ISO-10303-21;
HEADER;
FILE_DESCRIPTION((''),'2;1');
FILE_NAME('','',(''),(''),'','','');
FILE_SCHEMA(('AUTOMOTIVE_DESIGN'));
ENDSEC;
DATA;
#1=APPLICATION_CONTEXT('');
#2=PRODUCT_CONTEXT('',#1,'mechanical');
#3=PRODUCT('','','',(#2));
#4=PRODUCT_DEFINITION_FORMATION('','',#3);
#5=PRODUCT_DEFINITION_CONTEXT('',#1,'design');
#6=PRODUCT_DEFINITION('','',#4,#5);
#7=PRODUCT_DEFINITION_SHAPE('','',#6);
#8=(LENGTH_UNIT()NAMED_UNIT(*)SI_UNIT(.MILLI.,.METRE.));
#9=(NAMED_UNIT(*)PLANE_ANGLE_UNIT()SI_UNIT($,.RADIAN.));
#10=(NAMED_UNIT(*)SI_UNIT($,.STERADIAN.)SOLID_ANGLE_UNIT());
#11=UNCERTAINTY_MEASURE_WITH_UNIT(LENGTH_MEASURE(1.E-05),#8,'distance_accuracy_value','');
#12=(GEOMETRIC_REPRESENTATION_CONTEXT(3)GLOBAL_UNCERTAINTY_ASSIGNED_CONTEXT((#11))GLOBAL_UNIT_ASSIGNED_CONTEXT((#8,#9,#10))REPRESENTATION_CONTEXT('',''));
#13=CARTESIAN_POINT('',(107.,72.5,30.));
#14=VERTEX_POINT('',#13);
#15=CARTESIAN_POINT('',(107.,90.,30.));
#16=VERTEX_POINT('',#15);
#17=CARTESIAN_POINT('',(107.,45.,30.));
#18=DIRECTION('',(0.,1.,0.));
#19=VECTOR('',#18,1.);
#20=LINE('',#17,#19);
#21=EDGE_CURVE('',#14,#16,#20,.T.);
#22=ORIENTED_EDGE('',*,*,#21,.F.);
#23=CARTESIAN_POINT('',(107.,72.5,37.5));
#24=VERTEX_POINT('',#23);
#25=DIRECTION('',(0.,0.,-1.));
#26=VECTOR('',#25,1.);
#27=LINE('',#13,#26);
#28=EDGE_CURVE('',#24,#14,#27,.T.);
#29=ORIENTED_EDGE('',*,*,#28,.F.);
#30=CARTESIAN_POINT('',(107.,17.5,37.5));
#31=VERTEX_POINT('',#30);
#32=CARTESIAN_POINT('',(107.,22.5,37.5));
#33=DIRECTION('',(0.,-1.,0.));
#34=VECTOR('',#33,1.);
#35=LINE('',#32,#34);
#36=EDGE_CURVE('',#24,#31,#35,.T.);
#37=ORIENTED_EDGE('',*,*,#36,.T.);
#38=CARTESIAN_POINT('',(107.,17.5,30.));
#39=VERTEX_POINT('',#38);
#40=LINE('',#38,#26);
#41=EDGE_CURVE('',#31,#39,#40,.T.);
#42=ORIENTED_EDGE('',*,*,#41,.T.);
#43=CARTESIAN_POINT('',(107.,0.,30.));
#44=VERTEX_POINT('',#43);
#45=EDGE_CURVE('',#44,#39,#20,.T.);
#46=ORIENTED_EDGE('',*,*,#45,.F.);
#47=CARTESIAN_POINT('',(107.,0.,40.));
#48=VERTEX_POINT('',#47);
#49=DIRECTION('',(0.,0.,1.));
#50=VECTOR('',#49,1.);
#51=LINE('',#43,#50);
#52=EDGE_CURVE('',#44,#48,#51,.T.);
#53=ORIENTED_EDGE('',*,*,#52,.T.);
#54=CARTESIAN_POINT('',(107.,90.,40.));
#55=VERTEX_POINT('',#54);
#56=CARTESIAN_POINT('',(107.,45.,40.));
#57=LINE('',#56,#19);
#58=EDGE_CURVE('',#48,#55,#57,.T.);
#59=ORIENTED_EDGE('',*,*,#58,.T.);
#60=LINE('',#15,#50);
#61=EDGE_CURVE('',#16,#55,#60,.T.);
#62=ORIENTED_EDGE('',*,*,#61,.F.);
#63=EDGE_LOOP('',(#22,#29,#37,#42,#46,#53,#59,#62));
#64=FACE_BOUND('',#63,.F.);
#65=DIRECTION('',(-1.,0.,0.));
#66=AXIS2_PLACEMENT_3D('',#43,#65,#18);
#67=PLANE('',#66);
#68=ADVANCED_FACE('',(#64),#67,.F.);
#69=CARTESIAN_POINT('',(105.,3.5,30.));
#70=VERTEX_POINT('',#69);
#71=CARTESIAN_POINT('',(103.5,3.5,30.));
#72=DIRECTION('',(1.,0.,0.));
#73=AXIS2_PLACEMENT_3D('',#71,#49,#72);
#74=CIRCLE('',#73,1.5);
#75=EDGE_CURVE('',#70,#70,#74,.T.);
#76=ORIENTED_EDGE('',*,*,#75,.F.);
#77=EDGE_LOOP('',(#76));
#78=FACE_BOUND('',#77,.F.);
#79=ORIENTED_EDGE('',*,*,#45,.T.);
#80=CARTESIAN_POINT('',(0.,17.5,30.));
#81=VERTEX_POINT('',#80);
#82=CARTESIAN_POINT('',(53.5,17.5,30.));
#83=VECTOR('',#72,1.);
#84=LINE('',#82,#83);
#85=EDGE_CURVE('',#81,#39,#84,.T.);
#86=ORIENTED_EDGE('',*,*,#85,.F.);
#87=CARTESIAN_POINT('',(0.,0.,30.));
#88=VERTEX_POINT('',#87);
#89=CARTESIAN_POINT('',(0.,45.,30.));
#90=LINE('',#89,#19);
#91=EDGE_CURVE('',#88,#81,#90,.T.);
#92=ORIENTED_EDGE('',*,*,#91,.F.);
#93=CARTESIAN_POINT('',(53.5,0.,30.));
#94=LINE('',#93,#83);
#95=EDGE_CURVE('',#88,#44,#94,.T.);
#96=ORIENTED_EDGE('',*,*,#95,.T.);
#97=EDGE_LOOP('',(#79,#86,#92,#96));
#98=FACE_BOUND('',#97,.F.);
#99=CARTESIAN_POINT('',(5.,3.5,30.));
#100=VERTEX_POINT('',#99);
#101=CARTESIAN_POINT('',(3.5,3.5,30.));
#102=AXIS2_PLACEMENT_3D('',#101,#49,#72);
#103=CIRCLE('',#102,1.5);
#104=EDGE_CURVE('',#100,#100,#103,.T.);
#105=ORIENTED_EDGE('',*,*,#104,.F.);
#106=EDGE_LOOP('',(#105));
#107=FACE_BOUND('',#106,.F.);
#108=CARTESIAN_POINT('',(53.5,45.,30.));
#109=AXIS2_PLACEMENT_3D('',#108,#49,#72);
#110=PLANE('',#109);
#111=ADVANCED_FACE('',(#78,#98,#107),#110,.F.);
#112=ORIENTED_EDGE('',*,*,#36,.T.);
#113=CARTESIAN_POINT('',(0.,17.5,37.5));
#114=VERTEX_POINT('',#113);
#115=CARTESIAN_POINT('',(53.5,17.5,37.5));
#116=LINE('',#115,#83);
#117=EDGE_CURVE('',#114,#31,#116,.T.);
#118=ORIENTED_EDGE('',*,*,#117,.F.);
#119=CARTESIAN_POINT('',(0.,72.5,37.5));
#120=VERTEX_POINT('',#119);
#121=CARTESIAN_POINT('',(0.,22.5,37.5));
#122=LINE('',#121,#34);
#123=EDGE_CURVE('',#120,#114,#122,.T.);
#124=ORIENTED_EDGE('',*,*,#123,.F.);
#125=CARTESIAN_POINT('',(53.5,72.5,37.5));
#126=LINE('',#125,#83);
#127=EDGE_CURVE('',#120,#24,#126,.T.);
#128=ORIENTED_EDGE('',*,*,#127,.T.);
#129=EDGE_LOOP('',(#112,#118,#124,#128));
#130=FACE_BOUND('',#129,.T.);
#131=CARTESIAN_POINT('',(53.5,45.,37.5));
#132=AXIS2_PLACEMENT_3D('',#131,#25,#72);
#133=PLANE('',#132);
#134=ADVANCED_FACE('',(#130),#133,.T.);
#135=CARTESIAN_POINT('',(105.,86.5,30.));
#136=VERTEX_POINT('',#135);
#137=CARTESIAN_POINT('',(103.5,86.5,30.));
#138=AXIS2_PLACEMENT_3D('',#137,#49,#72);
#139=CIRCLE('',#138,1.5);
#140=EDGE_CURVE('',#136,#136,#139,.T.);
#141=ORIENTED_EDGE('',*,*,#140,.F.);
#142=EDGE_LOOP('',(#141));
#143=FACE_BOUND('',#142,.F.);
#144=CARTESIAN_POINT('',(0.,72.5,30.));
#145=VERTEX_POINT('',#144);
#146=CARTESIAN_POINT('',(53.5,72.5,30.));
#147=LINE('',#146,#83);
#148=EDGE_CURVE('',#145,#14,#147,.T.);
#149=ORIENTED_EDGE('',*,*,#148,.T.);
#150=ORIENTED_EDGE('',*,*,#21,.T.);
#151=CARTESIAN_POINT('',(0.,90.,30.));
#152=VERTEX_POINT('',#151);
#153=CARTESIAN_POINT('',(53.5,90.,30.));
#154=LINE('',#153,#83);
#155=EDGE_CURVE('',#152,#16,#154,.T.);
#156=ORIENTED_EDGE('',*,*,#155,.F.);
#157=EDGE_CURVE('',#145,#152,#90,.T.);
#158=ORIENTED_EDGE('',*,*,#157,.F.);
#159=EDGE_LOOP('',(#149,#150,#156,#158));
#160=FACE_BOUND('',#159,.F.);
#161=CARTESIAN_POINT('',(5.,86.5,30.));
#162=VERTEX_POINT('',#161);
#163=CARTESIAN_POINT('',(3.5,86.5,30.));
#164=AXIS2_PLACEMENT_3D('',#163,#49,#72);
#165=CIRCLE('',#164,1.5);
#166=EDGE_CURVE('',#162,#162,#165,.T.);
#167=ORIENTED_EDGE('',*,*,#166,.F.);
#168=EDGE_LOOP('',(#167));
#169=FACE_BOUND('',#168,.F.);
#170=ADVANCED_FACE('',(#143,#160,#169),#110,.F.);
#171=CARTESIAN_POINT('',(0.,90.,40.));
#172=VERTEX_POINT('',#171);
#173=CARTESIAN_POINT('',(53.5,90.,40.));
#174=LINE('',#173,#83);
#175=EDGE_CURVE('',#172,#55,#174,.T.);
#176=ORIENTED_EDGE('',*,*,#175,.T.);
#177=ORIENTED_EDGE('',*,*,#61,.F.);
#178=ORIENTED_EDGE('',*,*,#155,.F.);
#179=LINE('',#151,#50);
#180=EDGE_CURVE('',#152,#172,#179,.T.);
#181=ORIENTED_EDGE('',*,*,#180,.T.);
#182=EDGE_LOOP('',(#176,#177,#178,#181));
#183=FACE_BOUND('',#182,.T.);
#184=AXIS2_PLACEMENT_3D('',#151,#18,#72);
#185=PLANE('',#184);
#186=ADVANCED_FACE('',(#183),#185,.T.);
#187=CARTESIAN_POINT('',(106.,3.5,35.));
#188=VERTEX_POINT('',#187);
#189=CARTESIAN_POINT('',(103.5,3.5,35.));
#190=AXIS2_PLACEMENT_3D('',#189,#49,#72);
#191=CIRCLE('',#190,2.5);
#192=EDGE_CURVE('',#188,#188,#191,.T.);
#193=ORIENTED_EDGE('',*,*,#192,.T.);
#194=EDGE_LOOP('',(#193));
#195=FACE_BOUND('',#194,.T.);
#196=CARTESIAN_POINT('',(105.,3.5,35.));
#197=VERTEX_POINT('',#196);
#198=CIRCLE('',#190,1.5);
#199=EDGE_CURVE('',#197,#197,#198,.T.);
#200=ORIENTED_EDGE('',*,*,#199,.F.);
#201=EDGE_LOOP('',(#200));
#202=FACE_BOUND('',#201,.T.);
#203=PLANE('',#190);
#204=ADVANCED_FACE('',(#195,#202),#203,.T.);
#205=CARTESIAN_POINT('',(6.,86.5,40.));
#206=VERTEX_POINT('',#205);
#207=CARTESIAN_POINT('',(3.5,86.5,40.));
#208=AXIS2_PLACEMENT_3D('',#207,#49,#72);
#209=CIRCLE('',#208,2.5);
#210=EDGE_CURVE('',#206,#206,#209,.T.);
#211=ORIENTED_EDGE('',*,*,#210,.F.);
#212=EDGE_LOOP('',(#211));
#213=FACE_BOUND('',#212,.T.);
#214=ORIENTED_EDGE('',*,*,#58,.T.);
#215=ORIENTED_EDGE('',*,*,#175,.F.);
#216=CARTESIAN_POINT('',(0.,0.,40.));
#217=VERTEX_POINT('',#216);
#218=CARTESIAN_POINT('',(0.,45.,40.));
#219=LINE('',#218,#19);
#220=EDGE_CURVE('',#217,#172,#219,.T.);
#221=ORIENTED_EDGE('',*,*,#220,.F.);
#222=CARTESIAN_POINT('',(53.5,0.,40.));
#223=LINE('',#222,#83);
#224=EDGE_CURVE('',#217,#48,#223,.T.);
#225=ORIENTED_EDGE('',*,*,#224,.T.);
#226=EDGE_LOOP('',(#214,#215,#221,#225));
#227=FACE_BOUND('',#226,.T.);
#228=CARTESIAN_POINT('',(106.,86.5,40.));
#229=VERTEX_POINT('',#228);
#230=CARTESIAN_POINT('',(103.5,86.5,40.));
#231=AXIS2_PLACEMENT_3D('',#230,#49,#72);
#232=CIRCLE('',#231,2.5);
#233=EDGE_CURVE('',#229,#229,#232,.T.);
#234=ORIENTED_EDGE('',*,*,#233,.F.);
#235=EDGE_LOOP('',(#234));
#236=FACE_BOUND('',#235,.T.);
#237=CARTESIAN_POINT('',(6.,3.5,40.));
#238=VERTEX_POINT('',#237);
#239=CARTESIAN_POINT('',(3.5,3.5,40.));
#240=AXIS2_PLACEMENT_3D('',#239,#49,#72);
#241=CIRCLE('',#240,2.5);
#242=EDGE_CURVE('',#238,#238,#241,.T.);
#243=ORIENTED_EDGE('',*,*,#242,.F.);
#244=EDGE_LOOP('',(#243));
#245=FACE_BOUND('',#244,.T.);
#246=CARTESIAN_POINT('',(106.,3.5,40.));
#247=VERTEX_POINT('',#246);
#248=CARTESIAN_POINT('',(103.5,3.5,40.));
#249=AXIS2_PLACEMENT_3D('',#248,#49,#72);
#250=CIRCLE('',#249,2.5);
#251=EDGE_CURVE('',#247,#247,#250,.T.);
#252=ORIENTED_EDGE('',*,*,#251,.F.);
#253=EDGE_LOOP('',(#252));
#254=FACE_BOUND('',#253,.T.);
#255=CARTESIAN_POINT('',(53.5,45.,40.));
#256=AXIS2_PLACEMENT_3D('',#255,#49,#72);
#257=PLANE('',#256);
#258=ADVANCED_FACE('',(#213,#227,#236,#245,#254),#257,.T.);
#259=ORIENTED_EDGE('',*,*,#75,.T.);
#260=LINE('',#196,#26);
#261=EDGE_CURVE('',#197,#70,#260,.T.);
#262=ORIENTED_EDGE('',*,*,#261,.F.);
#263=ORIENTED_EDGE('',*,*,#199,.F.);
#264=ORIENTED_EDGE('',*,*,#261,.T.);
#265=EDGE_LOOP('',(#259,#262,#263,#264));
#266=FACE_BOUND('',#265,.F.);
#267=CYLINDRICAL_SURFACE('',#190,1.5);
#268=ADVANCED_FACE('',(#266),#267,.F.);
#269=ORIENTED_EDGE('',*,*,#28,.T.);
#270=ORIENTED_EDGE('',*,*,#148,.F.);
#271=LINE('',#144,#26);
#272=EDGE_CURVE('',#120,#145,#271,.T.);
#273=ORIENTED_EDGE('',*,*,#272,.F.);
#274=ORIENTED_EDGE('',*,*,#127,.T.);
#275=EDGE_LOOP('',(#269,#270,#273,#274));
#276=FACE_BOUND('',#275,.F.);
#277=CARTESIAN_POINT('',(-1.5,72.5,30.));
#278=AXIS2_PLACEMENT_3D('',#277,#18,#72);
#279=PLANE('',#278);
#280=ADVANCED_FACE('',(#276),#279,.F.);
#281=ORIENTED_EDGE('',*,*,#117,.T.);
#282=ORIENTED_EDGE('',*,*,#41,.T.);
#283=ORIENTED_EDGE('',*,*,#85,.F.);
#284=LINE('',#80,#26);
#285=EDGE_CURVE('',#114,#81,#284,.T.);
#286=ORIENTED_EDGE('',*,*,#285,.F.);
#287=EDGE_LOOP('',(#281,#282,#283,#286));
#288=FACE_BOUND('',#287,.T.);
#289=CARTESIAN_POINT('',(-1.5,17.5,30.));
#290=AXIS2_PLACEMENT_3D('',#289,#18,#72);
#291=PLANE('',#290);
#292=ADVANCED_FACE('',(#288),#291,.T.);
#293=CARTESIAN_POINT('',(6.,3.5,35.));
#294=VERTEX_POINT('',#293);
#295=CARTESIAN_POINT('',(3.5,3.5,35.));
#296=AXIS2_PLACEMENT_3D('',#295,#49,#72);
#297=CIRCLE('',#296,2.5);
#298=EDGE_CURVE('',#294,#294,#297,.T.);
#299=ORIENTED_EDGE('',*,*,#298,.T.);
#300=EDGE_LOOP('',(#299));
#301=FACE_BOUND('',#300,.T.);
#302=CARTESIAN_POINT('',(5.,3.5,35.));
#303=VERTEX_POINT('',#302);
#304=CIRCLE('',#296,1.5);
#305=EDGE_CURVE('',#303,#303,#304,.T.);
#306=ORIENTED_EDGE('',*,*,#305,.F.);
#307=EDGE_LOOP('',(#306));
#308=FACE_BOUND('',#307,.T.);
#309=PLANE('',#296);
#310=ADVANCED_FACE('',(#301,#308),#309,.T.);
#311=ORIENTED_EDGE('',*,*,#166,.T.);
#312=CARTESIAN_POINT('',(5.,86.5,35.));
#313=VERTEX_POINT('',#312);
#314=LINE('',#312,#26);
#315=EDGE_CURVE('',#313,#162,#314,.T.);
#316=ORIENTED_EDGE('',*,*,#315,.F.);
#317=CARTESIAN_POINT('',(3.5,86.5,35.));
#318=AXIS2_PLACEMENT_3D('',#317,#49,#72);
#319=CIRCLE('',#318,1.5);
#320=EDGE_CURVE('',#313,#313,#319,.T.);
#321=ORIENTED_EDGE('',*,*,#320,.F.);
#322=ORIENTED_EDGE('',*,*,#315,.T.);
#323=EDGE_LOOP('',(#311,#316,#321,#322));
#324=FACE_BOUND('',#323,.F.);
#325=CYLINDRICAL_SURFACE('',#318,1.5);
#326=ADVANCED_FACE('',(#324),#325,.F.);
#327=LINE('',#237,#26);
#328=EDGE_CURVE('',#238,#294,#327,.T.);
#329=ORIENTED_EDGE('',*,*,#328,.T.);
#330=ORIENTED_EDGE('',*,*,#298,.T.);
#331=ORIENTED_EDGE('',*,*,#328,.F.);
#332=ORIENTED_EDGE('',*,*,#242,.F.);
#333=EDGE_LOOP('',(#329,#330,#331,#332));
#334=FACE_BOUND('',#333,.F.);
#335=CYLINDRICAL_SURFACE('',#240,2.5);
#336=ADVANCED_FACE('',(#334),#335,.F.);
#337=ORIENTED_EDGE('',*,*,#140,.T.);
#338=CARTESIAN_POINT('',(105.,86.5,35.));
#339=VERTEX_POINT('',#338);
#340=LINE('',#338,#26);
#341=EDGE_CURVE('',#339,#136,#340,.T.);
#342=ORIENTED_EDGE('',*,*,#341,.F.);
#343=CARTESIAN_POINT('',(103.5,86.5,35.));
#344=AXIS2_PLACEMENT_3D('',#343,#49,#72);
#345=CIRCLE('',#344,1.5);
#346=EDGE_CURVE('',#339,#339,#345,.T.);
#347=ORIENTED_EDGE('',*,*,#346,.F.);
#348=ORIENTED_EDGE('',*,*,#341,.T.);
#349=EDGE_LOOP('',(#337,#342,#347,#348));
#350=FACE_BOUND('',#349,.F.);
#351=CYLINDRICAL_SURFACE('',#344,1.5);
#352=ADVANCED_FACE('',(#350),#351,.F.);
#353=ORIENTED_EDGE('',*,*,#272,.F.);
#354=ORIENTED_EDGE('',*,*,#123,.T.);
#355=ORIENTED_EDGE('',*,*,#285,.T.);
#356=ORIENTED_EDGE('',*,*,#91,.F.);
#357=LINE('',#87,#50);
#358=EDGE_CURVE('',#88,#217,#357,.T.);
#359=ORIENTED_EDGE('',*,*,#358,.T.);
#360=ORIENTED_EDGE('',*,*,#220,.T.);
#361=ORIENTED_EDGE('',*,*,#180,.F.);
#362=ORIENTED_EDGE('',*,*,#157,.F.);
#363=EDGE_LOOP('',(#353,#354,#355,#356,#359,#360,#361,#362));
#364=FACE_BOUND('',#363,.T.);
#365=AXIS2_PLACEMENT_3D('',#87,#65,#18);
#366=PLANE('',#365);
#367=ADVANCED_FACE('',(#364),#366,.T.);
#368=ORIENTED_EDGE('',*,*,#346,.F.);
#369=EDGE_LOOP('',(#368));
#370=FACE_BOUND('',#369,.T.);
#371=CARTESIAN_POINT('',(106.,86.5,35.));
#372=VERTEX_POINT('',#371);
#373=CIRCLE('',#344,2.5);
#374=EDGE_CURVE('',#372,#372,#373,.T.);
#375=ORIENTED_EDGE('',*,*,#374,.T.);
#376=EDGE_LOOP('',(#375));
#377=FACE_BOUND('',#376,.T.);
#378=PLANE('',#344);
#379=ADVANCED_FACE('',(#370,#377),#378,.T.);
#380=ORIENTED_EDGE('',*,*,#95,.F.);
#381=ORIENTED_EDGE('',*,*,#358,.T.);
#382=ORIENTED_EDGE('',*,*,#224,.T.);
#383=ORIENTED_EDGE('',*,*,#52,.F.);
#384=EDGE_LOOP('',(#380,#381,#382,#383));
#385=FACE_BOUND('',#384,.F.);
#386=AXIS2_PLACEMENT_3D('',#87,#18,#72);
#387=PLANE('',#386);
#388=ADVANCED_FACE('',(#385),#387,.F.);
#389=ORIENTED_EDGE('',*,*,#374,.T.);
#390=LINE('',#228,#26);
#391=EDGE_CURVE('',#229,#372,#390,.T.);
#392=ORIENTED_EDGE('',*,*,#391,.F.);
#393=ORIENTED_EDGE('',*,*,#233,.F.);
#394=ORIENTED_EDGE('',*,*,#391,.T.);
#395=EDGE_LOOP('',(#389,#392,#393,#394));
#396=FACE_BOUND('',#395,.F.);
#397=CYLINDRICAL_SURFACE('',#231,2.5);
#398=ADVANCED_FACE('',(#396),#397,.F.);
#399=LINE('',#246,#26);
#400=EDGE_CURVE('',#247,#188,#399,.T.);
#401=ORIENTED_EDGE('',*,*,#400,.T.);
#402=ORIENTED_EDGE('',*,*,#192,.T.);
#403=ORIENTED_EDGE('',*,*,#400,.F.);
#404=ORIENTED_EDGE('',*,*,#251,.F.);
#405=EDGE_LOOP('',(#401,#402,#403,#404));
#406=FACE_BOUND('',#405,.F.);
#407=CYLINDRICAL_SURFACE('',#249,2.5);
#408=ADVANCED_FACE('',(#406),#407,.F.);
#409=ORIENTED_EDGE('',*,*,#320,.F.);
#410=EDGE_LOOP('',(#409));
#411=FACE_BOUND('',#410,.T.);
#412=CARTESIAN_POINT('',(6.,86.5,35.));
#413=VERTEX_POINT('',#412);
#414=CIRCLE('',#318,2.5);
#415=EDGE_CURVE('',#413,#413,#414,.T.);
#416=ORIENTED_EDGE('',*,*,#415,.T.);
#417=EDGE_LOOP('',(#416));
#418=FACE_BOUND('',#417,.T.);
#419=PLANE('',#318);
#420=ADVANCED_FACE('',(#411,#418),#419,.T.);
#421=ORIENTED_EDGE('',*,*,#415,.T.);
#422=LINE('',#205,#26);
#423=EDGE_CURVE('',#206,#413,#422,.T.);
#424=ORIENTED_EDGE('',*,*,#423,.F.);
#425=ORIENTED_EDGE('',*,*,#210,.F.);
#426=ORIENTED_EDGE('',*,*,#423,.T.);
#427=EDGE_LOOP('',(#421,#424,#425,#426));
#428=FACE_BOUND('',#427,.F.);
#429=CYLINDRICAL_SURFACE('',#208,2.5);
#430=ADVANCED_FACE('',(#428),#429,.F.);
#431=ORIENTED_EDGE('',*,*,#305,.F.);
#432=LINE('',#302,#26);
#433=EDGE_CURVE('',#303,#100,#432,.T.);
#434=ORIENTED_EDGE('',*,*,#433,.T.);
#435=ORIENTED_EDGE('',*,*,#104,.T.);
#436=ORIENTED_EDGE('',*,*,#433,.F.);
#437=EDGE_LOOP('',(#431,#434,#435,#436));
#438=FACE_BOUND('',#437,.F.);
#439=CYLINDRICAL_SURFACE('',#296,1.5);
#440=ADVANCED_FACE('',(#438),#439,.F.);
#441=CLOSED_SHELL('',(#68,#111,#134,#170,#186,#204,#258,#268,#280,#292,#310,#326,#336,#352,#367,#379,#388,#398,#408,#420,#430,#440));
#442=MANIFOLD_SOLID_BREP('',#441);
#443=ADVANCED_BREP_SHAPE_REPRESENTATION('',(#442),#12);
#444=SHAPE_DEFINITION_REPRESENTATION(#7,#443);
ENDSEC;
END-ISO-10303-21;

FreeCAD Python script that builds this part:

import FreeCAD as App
import Part
import Sketcher


def add_polygon(sketch, points):
    """Adds a closed chain of lines whose ends are joined by coincident constraints."""
    first, n = sketch.GeometryCount, len(points)
    for a, b in zip(points, points[1:] + points[:1]):
        sketch.addGeometry(Part.LineSegment(App.Vector(*a, 0), App.Vector(*b, 0)), False)
    for i in range(n):
        sketch.addConstraint(Sketcher.Constraint("Coincident", first + i, 2, first + (i + 1) % n, 1))

doc = App.newDocument("Part")
body = doc.addObject("PartDesign::Body", "Body")

sketch1 = doc.addObject("Sketcher::SketchObject", "Sketch")
body.addObject(sketch1)
sketch1.AttachmentSupport = (doc.XY_Plane, [""])
sketch1.MapMode = "FlatFace"
add_polygon(sketch1, [(0, 90), (0, 0), (107, 0), (107, 90)])
sketch1.addConstraint([
    Sketcher.Constraint("Vertical", 0),
    Sketcher.Constraint("Horizontal", 1),
    Sketcher.Constraint("Vertical", 2),
    Sketcher.Constraint("Horizontal", 3),
    Sketcher.Constraint("Coincident", 0, 2, -1, 1),
    Sketcher.Constraint("DistanceX", 1, 1, 1, 2, 107.0),
    Sketcher.Constraint("DistanceY", 0, 2, 0, 1, 90.0),
])
pad1 = doc.addObject("PartDesign::Pad", "Pad")
body.addObject(pad1)
pad1.Profile = sketch1
pad1.Length = 10

sketch2 = doc.addObject("Sketcher::SketchObject", "Sketch001")
body.addObject(sketch2)
sketch2.AttachmentSupport = (doc.XY_Plane, [""])
sketch2.MapMode = "FlatFace"
sketch2.AttachmentOffset = App.Placement(App.Vector(0, 0, 10), App.Rotation())
sketch2.addGeometry(Part.Circle(App.Vector(3.5, 86.5, 0), App.Vector(0, 0, 1), 2.5), False)
sketch2.addConstraint([
    Sketcher.Constraint("Diameter", 0, 5.0),
    Sketcher.Constraint("DistanceX", -1, 1, 0, 3, 3.5),
    Sketcher.Constraint("DistanceY", -1, 1, 0, 3, 86.5),
])
pocket1 = doc.addObject("PartDesign::Pocket", "Pocket")
body.addObject(pocket1)
pocket1.Profile = sketch2
pocket1.Length = 5

sketch3 = doc.addObject("Sketcher::SketchObject", "Sketch002")
body.addObject(sketch3)
sketch3.AttachmentSupport = (doc.XY_Plane, [""])
sketch3.MapMode = "FlatFace"
sketch3.AttachmentOffset = App.Placement(App.Vector(0, 0, 5), App.Rotation())
sketch3.addGeometry(Part.Circle(App.Vector(3.5, 86.5, 0), App.Vector(0, 0, 1), 1.5), False)
sketch3.addConstraint([
    Sketcher.Constraint("Diameter", 0, 3.0),
    Sketcher.Constraint("DistanceX", -1, 1, 0, 3, 3.5),
    Sketcher.Constraint("DistanceY", -1, 1, 0, 3, 86.5),
])
pocket2 = doc.addObject("PartDesign::Pocket", "Pocket001")
body.addObject(pocket2)
pocket2.Profile = sketch3
pocket2.Type = "ThroughAll"

sketch4 = doc.addObject("Sketcher::SketchObject", "Sketch003")
body.addObject(sketch4)
sketch4.AttachmentSupport = (doc.XY_Plane, [""])
sketch4.MapMode = "FlatFace"
sketch4.AttachmentOffset = App.Placement(App.Vector(0, 0, 10), App.Rotation())
sketch4.addGeometry(Part.Circle(App.Vector(103.5, 86.5, 0), App.Vector(0, 0, 1), 2.5), False)
sketch4.addConstraint([
    Sketcher.Constraint("Diameter", 0, 5.0),
    Sketcher.Constraint("DistanceX", -1, 1, 0, 3, 103.5),
    Sketcher.Constraint("DistanceY", -1, 1, 0, 3, 86.5),
])
pocket3 = doc.addObject("PartDesign::Pocket", "Pocket002")
body.addObject(pocket3)
pocket3.Profile = sketch4
pocket3.Length = 5
doc.recompute()

linearpattern = doc.addObject("PartDesign::LinearPattern", "LinearPattern")
body.addObject(linearpattern)
linearpattern.Originals = [pocket1, pocket3]
linearpattern.Direction = (doc.Y_Axis, [""])
linearpattern.Mode = "offset"
linearpattern.Offset = 83
linearpattern.Occurrences = 2
linearpattern.Reversed = True
body.Tip = linearpattern

sketch5 = doc.addObject("Sketcher::SketchObject", "Sketch004")
body.addObject(sketch5)
sketch5.AttachmentSupport = (doc.XY_Plane, [""])
sketch5.MapMode = "FlatFace"
sketch5.AttachmentOffset = App.Placement(App.Vector(0, 0, 5), App.Rotation())
sketch5.addGeometry(Part.Circle(App.Vector(103.5, 86.5, 0), App.Vector(0, 0, 1), 1.5), False)
sketch5.addConstraint([
    Sketcher.Constraint("Diameter", 0, 3.0),
    Sketcher.Constraint("DistanceX", -1, 1, 0, 3, 103.5),
    Sketcher.Constraint("DistanceY", -1, 1, 0, 3, 86.5),
])
pocket4 = doc.addObject("PartDesign::Pocket", "Pocket003")
body.addObject(pocket4)
pocket4.Profile = sketch5
pocket4.Type = "ThroughAll"
doc.recompute()

linearpattern2 = doc.addObject("PartDesign::LinearPattern", "LinearPattern001")
body.addObject(linearpattern2)
linearpattern2.Originals = [pocket2, pocket4]
linearpattern2.Direction = (doc.Y_Axis, [""])
linearpattern2.Mode = "offset"
linearpattern2.Offset = 83
linearpattern2.Occurrences = 2
linearpattern2.Reversed = True
body.Tip = linearpattern2

sketch6 = doc.addObject("Sketcher::SketchObject", "Sketch005")
body.addObject(sketch6)
sketch6.AttachmentSupport = (doc.XY_Plane, [""])
sketch6.MapMode = "FlatFace"
add_polygon(sketch6, [(-2, 18), (-2, 72), (108, 72), (108, 18)])
sketch6.addConstraint([
    Sketcher.Constraint("Vertical", 0),
    Sketcher.Constraint("Horizontal", 1),
    Sketcher.Constraint("Vertical", 2),
    Sketcher.Constraint("Horizontal", 3),
    Sketcher.Constraint("DistanceX", 1, 1, 1, 2, 110.0),
    Sketcher.Constraint("DistanceY", 0, 1, 0, 2, 55.0),
    Sketcher.Constraint("DistanceX", 0, 2, -1, 1, 1.5),
    Sketcher.Constraint("DistanceY", -1, 1, 0, 2, 72.5),
])
pocket5 = doc.addObject("PartDesign::Pocket", "Pocket004")
body.addObject(pocket5)
pocket5.Profile = sketch6
pocket5.Length = 7.5
pocket5.Reversed = True
body2 = doc.addObject("PartDesign::Body", "Body001")
doc.recompute()

body.Placement = App.Placement(App.Vector(0, 0, 30), App.Rotation(App.Vector(0, 0, 1), 0))
boolean = doc.addObject("PartDesign::Boolean", "Boolean")
body2.addObject(boolean)
boolean.Type = "Fuse"
boolean.addObjects([body])

doc.recompute()
